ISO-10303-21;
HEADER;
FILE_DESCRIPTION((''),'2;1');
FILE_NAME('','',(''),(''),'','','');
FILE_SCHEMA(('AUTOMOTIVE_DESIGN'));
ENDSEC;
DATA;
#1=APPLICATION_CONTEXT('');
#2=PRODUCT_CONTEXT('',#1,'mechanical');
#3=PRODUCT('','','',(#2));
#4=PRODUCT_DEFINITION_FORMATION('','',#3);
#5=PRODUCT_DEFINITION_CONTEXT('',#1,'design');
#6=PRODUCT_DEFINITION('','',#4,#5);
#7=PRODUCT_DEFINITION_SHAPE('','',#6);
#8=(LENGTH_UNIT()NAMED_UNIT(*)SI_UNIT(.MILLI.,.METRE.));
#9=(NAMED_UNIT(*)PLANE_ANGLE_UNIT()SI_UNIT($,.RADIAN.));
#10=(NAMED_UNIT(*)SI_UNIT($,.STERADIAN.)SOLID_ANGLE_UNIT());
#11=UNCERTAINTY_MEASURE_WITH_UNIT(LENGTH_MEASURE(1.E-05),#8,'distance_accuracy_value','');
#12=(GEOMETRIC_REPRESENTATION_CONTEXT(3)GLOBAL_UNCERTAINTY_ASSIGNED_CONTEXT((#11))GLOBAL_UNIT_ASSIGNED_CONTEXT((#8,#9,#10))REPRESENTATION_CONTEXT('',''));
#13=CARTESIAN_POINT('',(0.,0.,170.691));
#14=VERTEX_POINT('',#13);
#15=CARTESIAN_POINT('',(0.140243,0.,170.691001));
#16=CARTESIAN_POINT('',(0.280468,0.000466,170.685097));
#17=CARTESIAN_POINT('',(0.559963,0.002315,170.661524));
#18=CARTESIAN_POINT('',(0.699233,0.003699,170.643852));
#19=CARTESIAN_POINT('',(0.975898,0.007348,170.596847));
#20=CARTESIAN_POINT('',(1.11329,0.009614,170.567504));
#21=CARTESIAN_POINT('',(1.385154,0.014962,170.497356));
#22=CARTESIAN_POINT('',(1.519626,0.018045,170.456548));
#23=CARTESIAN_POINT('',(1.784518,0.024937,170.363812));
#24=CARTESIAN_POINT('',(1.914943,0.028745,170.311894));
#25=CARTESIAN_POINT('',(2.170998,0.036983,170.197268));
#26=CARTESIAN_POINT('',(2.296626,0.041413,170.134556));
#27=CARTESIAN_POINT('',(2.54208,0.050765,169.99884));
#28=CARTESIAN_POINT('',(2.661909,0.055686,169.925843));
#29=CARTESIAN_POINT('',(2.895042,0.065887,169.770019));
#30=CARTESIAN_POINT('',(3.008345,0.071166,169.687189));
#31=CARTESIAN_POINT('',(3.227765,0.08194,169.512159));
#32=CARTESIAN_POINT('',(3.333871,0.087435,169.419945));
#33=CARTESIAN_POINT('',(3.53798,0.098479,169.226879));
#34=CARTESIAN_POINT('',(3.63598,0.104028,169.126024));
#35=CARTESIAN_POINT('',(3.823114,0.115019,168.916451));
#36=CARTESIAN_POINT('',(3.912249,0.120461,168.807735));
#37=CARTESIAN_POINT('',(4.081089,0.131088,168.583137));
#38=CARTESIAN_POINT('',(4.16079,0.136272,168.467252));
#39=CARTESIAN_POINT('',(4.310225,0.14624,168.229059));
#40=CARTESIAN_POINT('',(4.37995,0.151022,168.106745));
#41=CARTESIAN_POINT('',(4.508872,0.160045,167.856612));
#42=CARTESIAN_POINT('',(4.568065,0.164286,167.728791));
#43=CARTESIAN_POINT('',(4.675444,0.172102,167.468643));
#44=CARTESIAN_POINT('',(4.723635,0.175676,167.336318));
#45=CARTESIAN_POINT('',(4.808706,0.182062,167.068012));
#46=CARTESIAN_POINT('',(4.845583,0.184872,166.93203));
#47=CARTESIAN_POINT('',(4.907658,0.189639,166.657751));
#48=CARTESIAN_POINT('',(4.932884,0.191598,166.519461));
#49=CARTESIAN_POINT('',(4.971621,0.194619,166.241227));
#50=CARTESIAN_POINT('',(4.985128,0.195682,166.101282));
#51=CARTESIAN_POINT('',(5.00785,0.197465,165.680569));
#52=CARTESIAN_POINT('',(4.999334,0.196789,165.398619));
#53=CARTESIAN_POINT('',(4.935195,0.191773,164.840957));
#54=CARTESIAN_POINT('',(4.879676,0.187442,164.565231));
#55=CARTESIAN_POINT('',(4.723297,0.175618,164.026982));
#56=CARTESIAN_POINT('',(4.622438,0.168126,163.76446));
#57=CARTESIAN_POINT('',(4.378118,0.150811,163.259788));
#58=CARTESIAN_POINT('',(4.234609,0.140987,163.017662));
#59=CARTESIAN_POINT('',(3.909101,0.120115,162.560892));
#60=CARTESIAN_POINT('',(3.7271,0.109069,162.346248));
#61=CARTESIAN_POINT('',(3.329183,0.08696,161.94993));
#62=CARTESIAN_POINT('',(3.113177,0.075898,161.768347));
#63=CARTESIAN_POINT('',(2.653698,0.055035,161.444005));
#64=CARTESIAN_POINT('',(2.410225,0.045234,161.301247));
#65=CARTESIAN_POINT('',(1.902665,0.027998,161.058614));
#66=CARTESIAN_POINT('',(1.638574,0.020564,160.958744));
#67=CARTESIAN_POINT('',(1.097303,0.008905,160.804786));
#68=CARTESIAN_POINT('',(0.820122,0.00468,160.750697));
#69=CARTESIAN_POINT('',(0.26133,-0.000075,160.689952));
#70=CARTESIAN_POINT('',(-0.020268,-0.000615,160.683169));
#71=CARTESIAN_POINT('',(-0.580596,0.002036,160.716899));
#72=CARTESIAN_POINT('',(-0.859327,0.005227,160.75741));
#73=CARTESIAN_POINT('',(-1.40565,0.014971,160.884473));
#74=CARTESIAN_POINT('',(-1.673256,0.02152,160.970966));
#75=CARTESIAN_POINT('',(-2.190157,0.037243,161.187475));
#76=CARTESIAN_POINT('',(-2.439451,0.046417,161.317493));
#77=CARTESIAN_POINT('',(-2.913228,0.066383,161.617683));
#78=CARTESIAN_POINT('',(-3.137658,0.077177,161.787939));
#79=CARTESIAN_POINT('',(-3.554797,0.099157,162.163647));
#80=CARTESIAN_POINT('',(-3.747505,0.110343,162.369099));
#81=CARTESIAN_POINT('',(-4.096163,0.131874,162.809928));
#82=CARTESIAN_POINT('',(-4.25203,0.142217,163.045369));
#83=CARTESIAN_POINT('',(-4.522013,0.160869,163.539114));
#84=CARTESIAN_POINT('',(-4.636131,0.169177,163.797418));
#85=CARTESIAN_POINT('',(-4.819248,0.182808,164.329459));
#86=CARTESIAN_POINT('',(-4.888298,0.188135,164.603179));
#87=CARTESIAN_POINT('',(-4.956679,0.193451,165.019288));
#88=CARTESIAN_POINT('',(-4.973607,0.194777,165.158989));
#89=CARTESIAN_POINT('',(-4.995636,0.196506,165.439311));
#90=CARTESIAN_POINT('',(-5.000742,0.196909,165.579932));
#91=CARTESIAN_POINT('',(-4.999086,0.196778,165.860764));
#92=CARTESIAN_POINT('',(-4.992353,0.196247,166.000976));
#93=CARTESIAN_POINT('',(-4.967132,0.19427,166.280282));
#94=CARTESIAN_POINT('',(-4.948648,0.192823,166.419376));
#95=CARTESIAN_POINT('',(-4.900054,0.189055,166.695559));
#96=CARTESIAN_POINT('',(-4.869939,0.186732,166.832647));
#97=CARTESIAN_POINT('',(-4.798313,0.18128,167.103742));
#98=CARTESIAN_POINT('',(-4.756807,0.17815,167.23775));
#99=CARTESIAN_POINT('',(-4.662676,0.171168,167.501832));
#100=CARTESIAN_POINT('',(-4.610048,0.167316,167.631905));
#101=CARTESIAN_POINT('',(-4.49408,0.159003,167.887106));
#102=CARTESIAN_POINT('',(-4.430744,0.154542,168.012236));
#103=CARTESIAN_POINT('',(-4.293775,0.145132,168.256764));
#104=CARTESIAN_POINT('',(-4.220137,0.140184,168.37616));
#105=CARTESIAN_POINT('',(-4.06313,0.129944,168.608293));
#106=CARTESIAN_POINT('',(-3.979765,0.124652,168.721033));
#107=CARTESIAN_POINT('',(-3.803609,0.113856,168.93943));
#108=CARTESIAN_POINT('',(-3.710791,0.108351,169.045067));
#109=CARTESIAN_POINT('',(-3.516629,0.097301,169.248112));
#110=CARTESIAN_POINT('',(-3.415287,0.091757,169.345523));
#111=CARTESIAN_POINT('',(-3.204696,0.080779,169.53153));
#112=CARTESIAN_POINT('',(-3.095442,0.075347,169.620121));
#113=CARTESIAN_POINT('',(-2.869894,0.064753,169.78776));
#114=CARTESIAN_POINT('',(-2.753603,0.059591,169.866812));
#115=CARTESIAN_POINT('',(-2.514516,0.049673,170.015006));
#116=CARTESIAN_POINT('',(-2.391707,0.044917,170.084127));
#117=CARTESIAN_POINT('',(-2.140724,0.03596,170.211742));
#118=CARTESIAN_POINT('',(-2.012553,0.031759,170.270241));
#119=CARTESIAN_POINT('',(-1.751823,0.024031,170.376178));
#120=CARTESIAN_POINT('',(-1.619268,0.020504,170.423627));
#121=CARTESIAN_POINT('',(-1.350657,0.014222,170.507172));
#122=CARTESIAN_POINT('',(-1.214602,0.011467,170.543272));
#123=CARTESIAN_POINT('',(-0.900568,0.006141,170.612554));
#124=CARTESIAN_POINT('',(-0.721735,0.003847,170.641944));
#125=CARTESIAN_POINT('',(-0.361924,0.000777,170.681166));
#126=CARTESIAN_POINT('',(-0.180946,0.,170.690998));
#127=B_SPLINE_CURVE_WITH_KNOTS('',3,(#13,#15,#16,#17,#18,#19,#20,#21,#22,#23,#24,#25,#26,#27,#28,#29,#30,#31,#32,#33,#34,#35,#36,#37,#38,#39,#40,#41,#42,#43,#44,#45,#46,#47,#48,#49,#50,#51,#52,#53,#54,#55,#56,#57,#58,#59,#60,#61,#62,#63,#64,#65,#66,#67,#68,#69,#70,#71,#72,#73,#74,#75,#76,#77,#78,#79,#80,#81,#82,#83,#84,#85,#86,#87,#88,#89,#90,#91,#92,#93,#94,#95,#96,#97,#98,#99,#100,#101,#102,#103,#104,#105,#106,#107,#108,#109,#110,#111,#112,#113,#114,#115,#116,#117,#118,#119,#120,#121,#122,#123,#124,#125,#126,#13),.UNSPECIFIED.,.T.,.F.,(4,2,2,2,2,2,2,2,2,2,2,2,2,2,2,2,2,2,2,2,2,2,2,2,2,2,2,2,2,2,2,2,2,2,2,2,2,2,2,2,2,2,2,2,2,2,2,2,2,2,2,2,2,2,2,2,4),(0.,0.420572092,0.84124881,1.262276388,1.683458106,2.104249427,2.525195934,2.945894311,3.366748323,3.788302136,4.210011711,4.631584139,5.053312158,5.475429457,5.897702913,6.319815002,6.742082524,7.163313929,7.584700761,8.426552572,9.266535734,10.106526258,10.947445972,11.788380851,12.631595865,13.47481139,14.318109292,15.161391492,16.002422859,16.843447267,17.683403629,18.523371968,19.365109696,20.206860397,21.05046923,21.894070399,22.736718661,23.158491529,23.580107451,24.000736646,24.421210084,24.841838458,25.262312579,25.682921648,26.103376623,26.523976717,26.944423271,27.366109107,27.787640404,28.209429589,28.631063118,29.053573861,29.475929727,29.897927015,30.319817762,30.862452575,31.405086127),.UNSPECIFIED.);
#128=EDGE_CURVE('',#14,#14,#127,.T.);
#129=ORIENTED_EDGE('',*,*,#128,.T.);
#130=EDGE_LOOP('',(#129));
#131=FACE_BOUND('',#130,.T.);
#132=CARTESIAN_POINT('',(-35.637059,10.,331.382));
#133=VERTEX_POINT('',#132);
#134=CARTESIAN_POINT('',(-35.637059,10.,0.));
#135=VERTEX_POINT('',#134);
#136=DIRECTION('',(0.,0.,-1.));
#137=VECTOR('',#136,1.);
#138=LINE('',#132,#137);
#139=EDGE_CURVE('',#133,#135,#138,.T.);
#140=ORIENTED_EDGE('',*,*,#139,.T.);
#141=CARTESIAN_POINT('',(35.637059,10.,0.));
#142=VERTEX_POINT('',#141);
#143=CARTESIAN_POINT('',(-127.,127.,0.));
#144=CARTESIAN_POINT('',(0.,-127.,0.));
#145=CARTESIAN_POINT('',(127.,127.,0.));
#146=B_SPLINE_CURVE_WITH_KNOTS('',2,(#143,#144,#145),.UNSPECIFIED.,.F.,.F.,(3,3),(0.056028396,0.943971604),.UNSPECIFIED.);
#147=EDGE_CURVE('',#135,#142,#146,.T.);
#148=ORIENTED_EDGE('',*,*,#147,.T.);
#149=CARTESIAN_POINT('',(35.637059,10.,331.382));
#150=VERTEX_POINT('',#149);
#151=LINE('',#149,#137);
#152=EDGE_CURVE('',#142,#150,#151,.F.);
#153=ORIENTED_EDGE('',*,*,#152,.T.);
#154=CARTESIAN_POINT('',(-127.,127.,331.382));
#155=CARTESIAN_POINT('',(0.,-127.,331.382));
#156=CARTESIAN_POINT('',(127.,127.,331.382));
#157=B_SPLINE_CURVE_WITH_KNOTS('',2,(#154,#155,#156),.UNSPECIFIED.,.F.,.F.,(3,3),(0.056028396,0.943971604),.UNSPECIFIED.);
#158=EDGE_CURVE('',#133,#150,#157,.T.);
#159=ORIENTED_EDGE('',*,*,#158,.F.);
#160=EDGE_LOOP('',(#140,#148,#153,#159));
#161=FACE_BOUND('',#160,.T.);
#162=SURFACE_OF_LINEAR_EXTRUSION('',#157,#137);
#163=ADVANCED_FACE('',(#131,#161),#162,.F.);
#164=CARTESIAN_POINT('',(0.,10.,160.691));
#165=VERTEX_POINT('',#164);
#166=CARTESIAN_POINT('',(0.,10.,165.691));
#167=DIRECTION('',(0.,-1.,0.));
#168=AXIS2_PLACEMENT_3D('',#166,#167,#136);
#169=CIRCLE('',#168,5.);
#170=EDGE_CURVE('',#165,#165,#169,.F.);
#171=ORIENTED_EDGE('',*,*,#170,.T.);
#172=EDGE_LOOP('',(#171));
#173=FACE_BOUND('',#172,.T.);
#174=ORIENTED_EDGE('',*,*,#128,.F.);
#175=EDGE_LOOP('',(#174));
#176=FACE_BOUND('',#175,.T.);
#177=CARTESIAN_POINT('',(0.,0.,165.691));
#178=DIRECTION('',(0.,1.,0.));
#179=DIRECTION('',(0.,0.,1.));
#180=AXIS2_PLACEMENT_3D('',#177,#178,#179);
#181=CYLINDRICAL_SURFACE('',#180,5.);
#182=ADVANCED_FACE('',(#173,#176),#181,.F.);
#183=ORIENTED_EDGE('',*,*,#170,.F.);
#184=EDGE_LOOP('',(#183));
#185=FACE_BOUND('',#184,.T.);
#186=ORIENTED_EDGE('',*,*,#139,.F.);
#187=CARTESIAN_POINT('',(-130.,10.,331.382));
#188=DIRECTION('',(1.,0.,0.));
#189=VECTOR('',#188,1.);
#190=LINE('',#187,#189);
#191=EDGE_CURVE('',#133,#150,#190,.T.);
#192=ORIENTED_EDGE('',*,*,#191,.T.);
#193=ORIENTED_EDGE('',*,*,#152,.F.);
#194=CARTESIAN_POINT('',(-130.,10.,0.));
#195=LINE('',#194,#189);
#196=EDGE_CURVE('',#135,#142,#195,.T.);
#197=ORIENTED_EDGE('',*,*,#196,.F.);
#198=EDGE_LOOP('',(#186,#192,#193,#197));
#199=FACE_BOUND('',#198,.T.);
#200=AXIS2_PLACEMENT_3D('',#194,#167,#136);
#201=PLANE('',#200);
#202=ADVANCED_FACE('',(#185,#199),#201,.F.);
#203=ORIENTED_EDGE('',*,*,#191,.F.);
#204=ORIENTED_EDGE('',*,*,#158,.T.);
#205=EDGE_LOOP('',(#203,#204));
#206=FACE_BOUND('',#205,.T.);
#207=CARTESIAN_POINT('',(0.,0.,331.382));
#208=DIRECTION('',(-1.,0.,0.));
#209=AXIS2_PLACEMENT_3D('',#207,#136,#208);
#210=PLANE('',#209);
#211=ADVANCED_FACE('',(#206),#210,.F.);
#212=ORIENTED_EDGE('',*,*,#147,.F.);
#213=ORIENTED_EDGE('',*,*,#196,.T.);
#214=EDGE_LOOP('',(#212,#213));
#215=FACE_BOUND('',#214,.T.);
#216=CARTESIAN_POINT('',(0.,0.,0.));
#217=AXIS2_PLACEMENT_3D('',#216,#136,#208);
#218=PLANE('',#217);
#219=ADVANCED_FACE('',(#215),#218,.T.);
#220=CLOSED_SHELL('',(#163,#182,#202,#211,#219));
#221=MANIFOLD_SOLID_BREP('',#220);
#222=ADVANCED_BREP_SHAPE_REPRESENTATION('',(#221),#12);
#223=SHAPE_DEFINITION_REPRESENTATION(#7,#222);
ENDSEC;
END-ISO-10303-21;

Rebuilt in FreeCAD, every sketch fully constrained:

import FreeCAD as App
import Part
import Sketcher

V = App.Vector
Q = App.Units.Quantity

doc = App.newDocument("Part")
body = doc.addObject("PartDesign::Body", "Body")

# Sketch on XY plane
sketch1 = body.newObject("Sketcher::SketchObject", "Sketch")
sketch1.AttachmentSupport = (doc.getObject("XY_Plane"), [""])
sketch1.MapMode = "FlatFace"
sketch1.addGeometry(Part.LineSegment(V(127, 127, 0), V(-127, 127, 0)), False)
sketch1.addGeometry(Part.BSplineCurve([V(-127, 127, 0), V(0, -127, 0), V(127, 127, 0)], [3, 3], [0.056028396, 0.943971604], False, 2, [1, 1, 1], False), False)
sketch1.addConstraint(Sketcher.Constraint("Block", 1))
sketch1.addConstraint(Sketcher.Constraint("Coincident", 0, 1, 1, 2))
sketch1.addConstraint(Sketcher.Constraint("Coincident", 1, 1, 0, 2))
pad1 = body.newObject("PartDesign::Pad", "Pad")
pad1.Profile = sketch1
pad1.Length = 331.382

# Sketch on XZ plane
sketch2 = body.newObject("Sketcher::SketchObject", "Sketch001")
sketch2.AttachmentSupport = (doc.getObject("XZ_Plane"), [""])
sketch2.MapMode = "FlatFace"
sketch2.AttachmentOffset = App.Placement(V(0, 0, -127), App.Rotation())
sketch2.addGeometry(Part.Circle(V(0, 165.691, 0), V(0, 0, 1), 5), False)
sketch2.addConstraint(Sketcher.Constraint("PointOnObject", 0, 3, -2))
sketch2.addConstraint(Sketcher.Constraint("Diameter", 0, Q("10 mm")))
sketch2.addConstraint(Sketcher.Constraint("DistanceY", -1, 1, 0, 3, Q("165.691 mm")))
pocket1 = body.newObject("PartDesign::Pocket", "Pocket")
pocket1.Profile = sketch2
pocket1.Type = "ThroughAll"
pocket1.Reversed = True

# Sketch on XY plane
sketch3 = body.newObject("Sketcher::SketchObject", "Sketch002")
sketch3.AttachmentSupport = (doc.getObject("XY_Plane"), [""])
sketch3.MapMode = "FlatFace"
sketch3.AttachmentOffset = App.Placement(V(0, 0, 331.382), App.Rotation())
sketch3.addGeometry(Part.LineSegment(V(-130, 130, 0), V(-130, 10, 0)), False)
sketch3.addGeometry(Part.LineSegment(V(-130, 10, 0), V(130, 10, 0)), False)
sketch3.addGeometry(Part.LineSegment(V(130, 10, 0), V(130, 130, 0)), False)
sketch3.addGeometry(Part.LineSegment(V(130, 130, 0), V(-130, 130, 0)), False)
sketch3.addConstraint(Sketcher.Constraint("Coincident", 0, 2, 1, 1))
sketch3.addConstraint(Sketcher.Constraint("Coincident", 1, 2, 2, 1))
sketch3.addConstraint(Sketcher.Constraint("Coincident", 2, 2, 3, 1))
sketch3.addConstraint(Sketcher.Constraint("Coincident", 3, 2, 0, 1))
sketch3.addConstraint(Sketcher.Constraint("Vertical", 0))
sketch3.addConstraint(Sketcher.Constraint("Horizontal", 1))
sketch3.addConstraint(Sketcher.Constraint("Vertical", 2))
sketch3.addConstraint(Sketcher.Constraint("Horizontal", 3))
sketch3.addConstraint(Sketcher.Constraint("DistanceX", 1, 1, 1, 2, Q("260 mm")))
sketch3.addConstraint(Sketcher.Constraint("DistanceY", 0, 2, 0, 1, Q("120 mm")))
sketch3.addConstraint(Sketcher.Constraint("DistanceX", 0, 2, -1, 1, Q("130 mm")))
sketch3.addConstraint(Sketcher.Constraint("DistanceY", -1, 1, 0, 2, Q("10 mm")))
pocket2 = body.newObject("PartDesign::Pocket", "Pocket001")
pocket2.Profile = sketch3
pocket2.Type = "ThroughAll"

doc.recompute()
